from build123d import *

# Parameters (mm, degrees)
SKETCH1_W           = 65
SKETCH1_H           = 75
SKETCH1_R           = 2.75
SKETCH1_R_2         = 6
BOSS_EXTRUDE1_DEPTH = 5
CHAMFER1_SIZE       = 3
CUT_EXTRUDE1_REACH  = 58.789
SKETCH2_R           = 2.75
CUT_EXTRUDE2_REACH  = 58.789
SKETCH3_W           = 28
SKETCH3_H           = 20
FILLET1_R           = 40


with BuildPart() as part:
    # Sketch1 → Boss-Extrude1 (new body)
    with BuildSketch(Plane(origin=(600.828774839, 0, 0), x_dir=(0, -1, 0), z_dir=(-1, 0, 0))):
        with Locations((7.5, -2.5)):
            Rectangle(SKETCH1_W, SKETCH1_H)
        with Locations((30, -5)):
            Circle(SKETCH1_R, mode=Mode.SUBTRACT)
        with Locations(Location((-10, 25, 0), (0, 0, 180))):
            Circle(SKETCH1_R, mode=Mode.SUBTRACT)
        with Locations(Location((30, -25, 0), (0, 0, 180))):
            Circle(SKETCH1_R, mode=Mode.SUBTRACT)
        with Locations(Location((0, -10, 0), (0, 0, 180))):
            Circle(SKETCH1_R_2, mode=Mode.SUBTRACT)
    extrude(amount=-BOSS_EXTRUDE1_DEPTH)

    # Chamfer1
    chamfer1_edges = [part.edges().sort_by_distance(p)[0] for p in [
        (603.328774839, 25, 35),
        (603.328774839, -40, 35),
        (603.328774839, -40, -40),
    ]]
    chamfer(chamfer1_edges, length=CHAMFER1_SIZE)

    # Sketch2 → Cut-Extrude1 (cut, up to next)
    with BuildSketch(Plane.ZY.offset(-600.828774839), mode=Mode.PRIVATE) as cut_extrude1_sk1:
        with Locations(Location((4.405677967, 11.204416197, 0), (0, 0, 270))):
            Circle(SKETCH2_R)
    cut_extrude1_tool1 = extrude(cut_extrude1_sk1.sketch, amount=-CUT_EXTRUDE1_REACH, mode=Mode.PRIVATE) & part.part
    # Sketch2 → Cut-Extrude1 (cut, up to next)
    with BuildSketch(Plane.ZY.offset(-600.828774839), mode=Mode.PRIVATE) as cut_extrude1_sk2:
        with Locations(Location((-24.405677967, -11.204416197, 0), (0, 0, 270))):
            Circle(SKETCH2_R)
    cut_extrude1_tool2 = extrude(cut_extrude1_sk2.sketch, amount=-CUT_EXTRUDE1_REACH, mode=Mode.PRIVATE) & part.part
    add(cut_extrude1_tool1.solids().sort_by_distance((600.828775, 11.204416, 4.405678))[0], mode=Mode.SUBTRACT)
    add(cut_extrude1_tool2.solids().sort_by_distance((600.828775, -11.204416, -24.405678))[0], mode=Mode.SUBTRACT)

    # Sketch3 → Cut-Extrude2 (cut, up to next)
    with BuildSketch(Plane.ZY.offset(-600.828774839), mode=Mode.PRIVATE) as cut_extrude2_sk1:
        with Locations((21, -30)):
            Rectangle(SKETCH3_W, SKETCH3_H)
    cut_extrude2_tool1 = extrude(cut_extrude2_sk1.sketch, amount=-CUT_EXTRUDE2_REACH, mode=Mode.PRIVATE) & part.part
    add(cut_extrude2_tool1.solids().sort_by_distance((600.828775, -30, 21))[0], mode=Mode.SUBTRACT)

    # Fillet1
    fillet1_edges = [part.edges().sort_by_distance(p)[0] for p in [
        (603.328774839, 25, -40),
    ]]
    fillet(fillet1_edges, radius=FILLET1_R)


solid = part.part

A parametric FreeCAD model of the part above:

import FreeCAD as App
import Part
import Sketcher

V = App.Vector


def edges_at(feature, points):
    """Names of the edges that pass closest to the given points."""
    edges = feature.Shape.Edges
    near = lambda p: min(range(len(edges)), key=lambda i: edges[i].distToShape(Part.Vertex(*p))[0])
    return sorted({f"Edge{near(p) + 1}" for p in points})

doc = App.newDocument("Part")
body = doc.addObject("PartDesign::Body", "Body")

# Sketch on YZ plane
sketch1 = body.newObject("Sketcher::SketchObject", "Sketch")
sketch1.AttachmentSupport = (doc.getObject("YZ_Plane"), [""])
sketch1.MapMode = "FlatFace"
sketch1.AttachmentOffset = App.Placement(V(0, 0, 600.828775), App.Rotation())
sketch1.addGeometry([
    Part.LineSegment(V(25, 35, 0), V(25, -40, 0)),  # 0
    Part.LineSegment(V(25, -40, 0), V(-40, -40, 0)),  # 1
    Part.LineSegment(V(-40, -40, 0), V(-40, 35, 0)),  # 2
    Part.LineSegment(V(-40, 35, 0), V(25, 35, 0)),  # 3
    Part.Circle(V(0, -10, 0), V(0, 0, 1), 6),  # 4
    Part.Circle(V(-30, -25, 0), V(0, 0, 1), 2.8),  # 5
    Part.Circle(V(-30, -5, 0), V(0, 0, 1), 2.8),  # 6
    Part.Circle(V(10, 25, 0), V(0, 0, 1), 2.8),  # 7
], False)
sketch1.addConstraint([
    Sketcher.Constraint("Coincident", 0, 2, 1, 1),
    Sketcher.Constraint("Coincident", 1, 2, 2, 1),
    Sketcher.Constraint("Coincident", 2, 2, 3, 1),
    Sketcher.Constraint("Coincident", 3, 2, 0, 1),
    Sketcher.Constraint("Vertical", 0),
    Sketcher.Constraint("Horizontal", 1),
    Sketcher.Constraint("Vertical", 2),
    Sketcher.Constraint("Horizontal", 3),
    Sketcher.Constraint("Equal", 5, 6),
    Sketcher.Constraint("Equal", 6, 7),
    Sketcher.Constraint("PointOnObject", 4, 3, -2),
    Sketcher.Constraint("Vertical", 5, 3, 6, 3),
    Sketcher.Constraint("Diameter", 4, 12.0),
    Sketcher.Constraint("Diameter", 5, 5.5),
    Sketcher.Constraint("DistanceX", 1, 2, 1, 1, 65.0),
    Sketcher.Constraint("DistanceY", 0, 2, 0, 1, 75.0),
    Sketcher.Constraint("DistanceY", 4, 3, -1, 1, 10.0),
    Sketcher.Constraint("DistanceX", 5, 3, -1, 1, 30.0),
    Sketcher.Constraint("DistanceY", 5, 3, -1, 1, 25.0),
    Sketcher.Constraint("DistanceY", 6, 3, -1, 1, 5.0),
    Sketcher.Constraint("DistanceX", -1, 1, 7, 3, 10.0),
    Sketcher.Constraint("DistanceY", -1, 1, 7, 3, 25.0),
    Sketcher.Constraint("DistanceX", -1, 1, 0, 2, 25.0),
    Sketcher.Constraint("DistanceY", 0, 2, -1, 1, 40.0),
])
pad1 = body.newObject("PartDesign::Pad", "Pad")
pad1.Profile = sketch1
pad1.Length = 5
doc.recompute()

chamfer = body.newObject("PartDesign::Chamfer", "Chamfer")
chamfer.Base = (pad1, edges_at(pad1, [(603.329, 25, 35), (603.329, -40, 35), (603.329, -40, -40)]))
chamfer.Size = 3

# Sketch on YZ plane
sketch2 = body.newObject("Sketcher::SketchObject", "Sketch001")
sketch2.AttachmentSupport = (doc.getObject("YZ_Plane"), [""])
sketch2.MapMode = "FlatFace"
sketch2.AttachmentOffset = App.Placement(V(0, 0, 600.828775), App.Rotation())
sketch2.addGeometry(Part.Circle(V(11.2, 4.4, 0), V(0, 0, 1), 2.8), False)
sketch2.addConstraint([
    Sketcher.Constraint("Diameter", 0, 5.5),
    Sketcher.Constraint("DistanceX", -1, 1, 0, 3, 11.204416),
    Sketcher.Constraint("DistanceY", -1, 1, 0, 3, 4.405678),
])
pocket1 = body.newObject("PartDesign::Pocket", "Pocket")
pocket1.Profile = sketch2
pocket1.Type = "UpToFirst"
pocket1.Reversed = True

# Sketch on YZ plane
sketch3 = body.newObject("Sketcher::SketchObject", "Sketch002")
sketch3.AttachmentSupport = (doc.getObject("YZ_Plane"), [""])
sketch3.MapMode = "FlatFace"
sketch3.AttachmentOffset = App.Placement(V(0, 0, 600.828775), App.Rotation())
sketch3.addGeometry(Part.Circle(V(-11.2, -24.4, 0), V(0, 0, 1), 2.8), False)
sketch3.addConstraint([
    Sketcher.Constraint("Diameter", 0, 5.5),
    Sketcher.Constraint("DistanceX", 0, 3, -1, 1, 11.204416),
    Sketcher.Constraint("DistanceY", 0, 3, -1, 1, 24.405678),
])
pocket2 = body.newObject("PartDesign::Pocket", "Pocket001")
pocket2.Profile = sketch3
pocket2.Type = "UpToFirst"
pocket2.Reversed = True

# Sketch on YZ plane
sketch4 = body.newObject("Sketcher::SketchObject", "Sketch003")
sketch4.AttachmentSupport = (doc.getObject("YZ_Plane"), [""])
sketch4.MapMode = "FlatFace"
sketch4.AttachmentOffset = App.Placement(V(0, 0, 600.828775), App.Rotation())
sketch4.addGeometry([
    Part.LineSegment(V(-20, 7, 0), V(-40, 7, 0)),
    Part.LineSegment(V(-40, 7, 0), V(-40, 35, 0)),
    Part.LineSegment(V(-40, 35, 0), V(-20, 35, 0)),
    Part.LineSegment(V(-20, 35, 0), V(-20, 7, 0)),
], False)
sketch4.addConstraint([
    Sketcher.Constraint("Coincident", 0, 2, 1, 1),
    Sketcher.Constraint("Coincident", 1, 2, 2, 1),
    Sketcher.Constraint("Coincident", 2, 2, 3, 1),
    Sketcher.Constraint("Coincident", 3, 2, 0, 1),
    Sketcher.Constraint("Horizontal", 0),
    Sketcher.Constraint("Vertical", 1),
    Sketcher.Constraint("Horizontal", 2),
    Sketcher.Constraint("Vertical", 3),
    Sketcher.Constraint("DistanceX", 0, 2, 0, 1, 20.0),
    Sketcher.Constraint("DistanceY", 1, 1, 1, 2, 28.0),
    Sketcher.Constraint("DistanceX", 0, 2, -1, 1, 40.0),
    Sketcher.Constraint("DistanceY", -1, 1, 0, 2, 7.0),
])
pocket3 = body.newObject("PartDesign::Pocket", "Pocket002")
pocket3.Profile = sketch4
pocket3.Type = "UpToFirst"
pocket3.Reversed = True
doc.recompute()

fillet = body.newObject("PartDesign::Fillet", "Fillet")
fillet.Base = (pocket3, edges_at(pocket3, [(603.329, 25, -40)]))
fillet.Radius = 40

doc.recompute()
